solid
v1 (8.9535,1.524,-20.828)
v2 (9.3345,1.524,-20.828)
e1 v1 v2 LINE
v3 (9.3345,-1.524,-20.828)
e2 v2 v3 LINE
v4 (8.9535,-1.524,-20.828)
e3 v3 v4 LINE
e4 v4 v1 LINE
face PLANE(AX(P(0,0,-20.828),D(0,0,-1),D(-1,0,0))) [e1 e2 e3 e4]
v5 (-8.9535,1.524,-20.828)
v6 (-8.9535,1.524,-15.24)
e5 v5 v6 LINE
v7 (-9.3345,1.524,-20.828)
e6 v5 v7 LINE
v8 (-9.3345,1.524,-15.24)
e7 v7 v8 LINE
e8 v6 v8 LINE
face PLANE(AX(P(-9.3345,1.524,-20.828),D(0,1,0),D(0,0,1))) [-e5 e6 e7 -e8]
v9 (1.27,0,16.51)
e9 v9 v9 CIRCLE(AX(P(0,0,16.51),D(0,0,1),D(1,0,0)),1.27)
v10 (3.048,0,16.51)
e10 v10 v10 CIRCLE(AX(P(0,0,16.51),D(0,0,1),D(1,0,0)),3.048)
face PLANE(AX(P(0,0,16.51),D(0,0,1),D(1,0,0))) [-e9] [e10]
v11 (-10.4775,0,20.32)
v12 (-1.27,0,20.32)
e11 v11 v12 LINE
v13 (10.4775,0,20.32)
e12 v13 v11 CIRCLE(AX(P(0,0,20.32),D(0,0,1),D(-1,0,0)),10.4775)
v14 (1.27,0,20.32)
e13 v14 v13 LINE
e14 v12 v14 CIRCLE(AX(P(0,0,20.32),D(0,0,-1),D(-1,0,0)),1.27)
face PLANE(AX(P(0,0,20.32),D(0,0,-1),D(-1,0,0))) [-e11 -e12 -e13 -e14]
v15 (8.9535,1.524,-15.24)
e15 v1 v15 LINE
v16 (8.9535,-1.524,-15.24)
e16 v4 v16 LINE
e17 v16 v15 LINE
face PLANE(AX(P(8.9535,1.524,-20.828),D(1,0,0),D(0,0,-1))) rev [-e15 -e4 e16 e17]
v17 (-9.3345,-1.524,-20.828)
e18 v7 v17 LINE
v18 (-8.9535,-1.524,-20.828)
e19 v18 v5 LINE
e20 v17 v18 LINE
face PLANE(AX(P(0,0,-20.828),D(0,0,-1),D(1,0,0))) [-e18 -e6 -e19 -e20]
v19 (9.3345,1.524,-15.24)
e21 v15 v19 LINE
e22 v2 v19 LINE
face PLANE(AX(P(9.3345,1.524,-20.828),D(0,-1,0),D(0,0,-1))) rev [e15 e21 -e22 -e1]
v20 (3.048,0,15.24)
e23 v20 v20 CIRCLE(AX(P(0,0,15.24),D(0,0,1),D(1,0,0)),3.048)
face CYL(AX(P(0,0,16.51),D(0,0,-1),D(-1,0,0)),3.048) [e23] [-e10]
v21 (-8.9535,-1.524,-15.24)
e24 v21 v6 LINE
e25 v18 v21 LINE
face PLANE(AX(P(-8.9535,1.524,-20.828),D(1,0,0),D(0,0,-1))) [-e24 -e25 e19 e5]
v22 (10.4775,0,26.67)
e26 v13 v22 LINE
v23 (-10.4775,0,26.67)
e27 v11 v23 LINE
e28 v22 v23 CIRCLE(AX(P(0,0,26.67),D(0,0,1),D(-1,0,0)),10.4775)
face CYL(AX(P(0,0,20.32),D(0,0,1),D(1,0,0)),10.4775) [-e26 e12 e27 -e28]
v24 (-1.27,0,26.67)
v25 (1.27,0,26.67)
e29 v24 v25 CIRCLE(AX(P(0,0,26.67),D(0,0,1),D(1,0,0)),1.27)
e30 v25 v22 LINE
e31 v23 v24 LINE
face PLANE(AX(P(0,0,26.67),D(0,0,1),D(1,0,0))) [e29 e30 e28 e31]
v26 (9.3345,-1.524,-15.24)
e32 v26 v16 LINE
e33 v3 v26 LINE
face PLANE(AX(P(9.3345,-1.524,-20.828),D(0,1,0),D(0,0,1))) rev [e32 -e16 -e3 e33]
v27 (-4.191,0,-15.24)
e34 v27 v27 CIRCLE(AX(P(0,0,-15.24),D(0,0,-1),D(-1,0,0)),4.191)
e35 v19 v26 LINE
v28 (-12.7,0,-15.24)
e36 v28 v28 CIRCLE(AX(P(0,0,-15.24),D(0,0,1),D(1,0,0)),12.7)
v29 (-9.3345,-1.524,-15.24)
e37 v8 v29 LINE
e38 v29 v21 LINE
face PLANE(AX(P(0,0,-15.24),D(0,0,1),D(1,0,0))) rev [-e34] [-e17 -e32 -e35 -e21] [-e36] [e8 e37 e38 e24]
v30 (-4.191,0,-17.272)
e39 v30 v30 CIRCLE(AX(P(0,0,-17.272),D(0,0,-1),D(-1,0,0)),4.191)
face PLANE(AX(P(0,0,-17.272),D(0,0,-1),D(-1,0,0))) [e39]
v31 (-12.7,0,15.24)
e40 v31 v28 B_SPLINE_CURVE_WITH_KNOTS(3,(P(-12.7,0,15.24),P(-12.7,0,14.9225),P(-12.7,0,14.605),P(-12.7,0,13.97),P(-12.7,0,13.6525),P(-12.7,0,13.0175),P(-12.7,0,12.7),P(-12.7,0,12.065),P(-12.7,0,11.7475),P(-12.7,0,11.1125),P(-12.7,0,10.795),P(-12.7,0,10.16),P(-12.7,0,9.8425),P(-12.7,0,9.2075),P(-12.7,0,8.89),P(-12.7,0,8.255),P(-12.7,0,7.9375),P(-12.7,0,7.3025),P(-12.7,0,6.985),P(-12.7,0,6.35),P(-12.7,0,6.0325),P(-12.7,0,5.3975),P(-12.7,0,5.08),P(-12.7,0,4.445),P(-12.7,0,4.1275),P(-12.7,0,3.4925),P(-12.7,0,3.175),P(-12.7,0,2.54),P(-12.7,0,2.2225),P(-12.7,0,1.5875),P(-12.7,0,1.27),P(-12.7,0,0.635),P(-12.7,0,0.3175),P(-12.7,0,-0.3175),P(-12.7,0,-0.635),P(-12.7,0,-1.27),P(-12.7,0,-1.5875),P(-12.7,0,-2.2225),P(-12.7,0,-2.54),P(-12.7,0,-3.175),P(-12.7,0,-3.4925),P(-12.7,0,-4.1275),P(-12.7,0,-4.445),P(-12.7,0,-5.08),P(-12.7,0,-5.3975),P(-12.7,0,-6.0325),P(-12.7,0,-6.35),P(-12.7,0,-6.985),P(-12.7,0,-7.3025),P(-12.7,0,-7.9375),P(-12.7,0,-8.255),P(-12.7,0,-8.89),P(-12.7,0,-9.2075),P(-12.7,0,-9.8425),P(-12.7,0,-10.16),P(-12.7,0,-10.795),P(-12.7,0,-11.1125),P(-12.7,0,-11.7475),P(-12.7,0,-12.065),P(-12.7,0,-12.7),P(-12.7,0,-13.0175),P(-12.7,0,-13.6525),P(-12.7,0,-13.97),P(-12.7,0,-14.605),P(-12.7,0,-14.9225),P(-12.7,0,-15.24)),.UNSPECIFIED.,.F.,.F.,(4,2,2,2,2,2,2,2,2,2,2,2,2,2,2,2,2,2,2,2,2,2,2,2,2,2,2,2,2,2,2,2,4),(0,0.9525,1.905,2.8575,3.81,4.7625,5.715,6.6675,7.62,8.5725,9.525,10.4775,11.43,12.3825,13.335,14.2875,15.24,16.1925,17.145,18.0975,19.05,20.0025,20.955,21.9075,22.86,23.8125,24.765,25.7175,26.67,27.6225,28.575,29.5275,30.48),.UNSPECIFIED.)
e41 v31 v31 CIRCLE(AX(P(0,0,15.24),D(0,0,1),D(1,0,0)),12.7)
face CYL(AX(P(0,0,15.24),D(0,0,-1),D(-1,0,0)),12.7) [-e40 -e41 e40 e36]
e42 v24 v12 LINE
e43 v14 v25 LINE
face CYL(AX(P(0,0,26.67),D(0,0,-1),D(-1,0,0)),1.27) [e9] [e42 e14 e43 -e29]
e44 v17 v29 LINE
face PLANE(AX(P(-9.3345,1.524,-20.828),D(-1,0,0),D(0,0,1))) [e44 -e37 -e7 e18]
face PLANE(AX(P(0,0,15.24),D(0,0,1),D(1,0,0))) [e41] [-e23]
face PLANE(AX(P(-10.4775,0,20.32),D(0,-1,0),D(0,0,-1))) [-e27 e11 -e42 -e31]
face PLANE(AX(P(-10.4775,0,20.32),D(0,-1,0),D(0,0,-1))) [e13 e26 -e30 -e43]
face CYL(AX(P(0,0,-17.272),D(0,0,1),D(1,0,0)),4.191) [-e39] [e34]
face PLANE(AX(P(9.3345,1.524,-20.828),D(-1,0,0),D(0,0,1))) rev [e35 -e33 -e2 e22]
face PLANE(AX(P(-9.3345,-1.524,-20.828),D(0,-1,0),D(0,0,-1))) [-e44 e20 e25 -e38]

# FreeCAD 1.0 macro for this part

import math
import FreeCAD as App
import Part
import Sketcher
Q = App.Units.Quantity

doc = App.newDocument("Part")
body = doc.addObject("PartDesign::Body", "Body")

# Sketch on XY plane
sketch1 = body.newObject("Sketcher::SketchObject", "Sketch")
sketch1.AttachmentSupport = (doc.getObject("XY_Plane"), [""])
sketch1.MapMode = "FlatFace"
sketch1.addGeometry(Part.Circle(App.Vector(0, 0, 0), App.Vector(0, 0, 1), 12.7), False)
sketch1.addConstraint(Sketcher.Constraint("Coincident", 0, 3, -1, 1))
sketch1.addConstraint(Sketcher.Constraint("Diameter", 0, Q("1 in")))
pad1 = body.newObject("PartDesign::Pad", "Pad")
pad1.Profile = sketch1
pad1.Length = Q("1.2 in")
pad1.Midplane = True

# Sketch on XY plane
sketch2 = body.newObject("Sketcher::SketchObject", "Sketch001")
sketch2.AttachmentSupport = (doc.getObject("XY_Plane"), [""])
sketch2.MapMode = "FlatFace"
sketch2.AttachmentOffset = App.Placement(App.Vector(0, 0, 0.6 * 25.4), App.Rotation())
sketch2.addGeometry(Part.Circle(App.Vector(0, 0, 0), App.Vector(0, 0, 1), 3.048), False)
sketch2.addConstraint(Sketcher.Constraint("Coincident", 0, 3, -1, 1))
sketch2.addConstraint(Sketcher.Constraint("Diameter", 0, Q("0.24 in")))
pad2 = body.newObject("PartDesign::Pad", "Pad001")
pad2.Profile = sketch2
pad2.Length = Q("0.05 in")

# Sketch on XY plane
sketch3 = body.newObject("Sketcher::SketchObject", "Sketch002")
sketch3.AttachmentSupport = (doc.getObject("XY_Plane"), [""])
sketch3.MapMode = "FlatFace"
sketch3.AttachmentOffset = App.Placement(App.Vector(0, 0, 0.65 * 25.4), App.Rotation())
sketch3.addGeometry(Part.Circle(App.Vector(0, 0, 0), App.Vector(0, 0, 1), 1.27), False)
sketch3.addConstraint(Sketcher.Constraint("Coincident", 0, 3, -1, 1))
sketch3.addConstraint(Sketcher.Constraint("Diameter", 0, Q("0.1 in")))
pad3 = body.newObject("PartDesign::Pad", "Pad002")
pad3.Profile = sketch3
pad3.Length = Q("0.4 in")

# Sketch on XY plane
sketch4 = body.newObject("Sketcher::SketchObject", "Sketch003")
sketch4.AttachmentSupport = (doc.getObject("XY_Plane"), [""])
sketch4.MapMode = "FlatFace"
sketch4.AttachmentOffset = App.Placement(App.Vector(0, 0, 1.05 * 25.4), App.Rotation())
sketch4.addGeometry(Part.LineSegment(App.Vector(-10.4775, 0, 0), App.Vector(10.4775, 0, 0)), False)
sketch4.addGeometry(Part.ArcOfCircle(Part.Circle(App.Vector(0, 0, 0), App.Vector(0, 0, 1), 10.4775), math.radians(0), math.radians(180)), False)
sketch4.addConstraint(Sketcher.Constraint("Coincident", 0, 1, 1, 2))
sketch4.addConstraint(Sketcher.Constraint("Coincident", 1, 1, 0, 2))
sketch4.addConstraint(Sketcher.Constraint("Horizontal", 0))
sketch4.addConstraint(Sketcher.Constraint("Coincident", 1, 3, -1, 1))
sketch4.addConstraint(Sketcher.Constraint("PointOnObject", 0, 1, -1))
sketch4.addConstraint(Sketcher.Constraint("Radius", 1, Q("0.4125 in")))
pad4 = body.newObject("PartDesign::Pad", "Pad003")
pad4.Profile = sketch4
pad4.Length = Q("0.25 in")
pad4.Reversed = True

# Sketch on XY plane
sketch5 = body.newObject("Sketcher::SketchObject", "Sketch004")
sketch5.AttachmentSupport = (doc.getObject("XY_Plane"), [""])
sketch5.MapMode = "FlatFace"
sketch5.AttachmentOffset = App.Placement(App.Vector(0, 0, -0.6 * 25.4), App.Rotation())
sketch5.addGeometry(Part.Circle(App.Vector(0, 0, 0), App.Vector(0, 0, 1), 4.191), False)
sketch5.addConstraint(Sketcher.Constraint("Coincident", 0, 3, -1, 1))
sketch5.addConstraint(Sketcher.Constraint("Diameter", 0, Q("0.33 in")))
pad5 = body.newObject("PartDesign::Pad", "Pad004")
pad5.Profile = sketch5
pad5.Length = Q("0.08 in")
pad5.Reversed = True

# Sketch on XY plane
sketch6 = body.newObject("Sketcher::SketchObject", "Sketch005")
sketch6.AttachmentSupport = (doc.getObject("XY_Plane"), [""])
sketch6.MapMode = "FlatFace"
sketch6.AttachmentOffset = App.Placement(App.Vector(0, 0, -0.6 * 25.4), App.Rotation())
sketch6.addGeometry(Part.LineSegment(App.Vector(9.3345, 1.524, 0), App.Vector(9.3345, -1.524, 0)), False)
sketch6.addGeometry(Part.LineSegment(App.Vector(9.3345, -1.524, 0), App.Vector(8.9535, -1.524, 0)), False)
sketch6.addGeometry(Part.LineSegment(App.Vector(8.9535, -1.524, 0), App.Vector(8.9535, 1.524, 0)), False)
sketch6.addGeometry(Part.LineSegment(App.Vector(8.9535, 1.524, 0), App.Vector(9.3345, 1.524, 0)), False)
sketch6.addConstraint(Sketcher.Constraint("Coincident", 0, 2, 1, 1))
sketch6.addConstraint(Sketcher.Constraint("Coincident", 1, 2, 2, 1))
sketch6.addConstraint(Sketcher.Constraint("Coincident", 2, 2, 3, 1))
sketch6.addConstraint(Sketcher.Constraint("Coincident", 3, 2, 0, 1))
sketch6.addConstraint(Sketcher.Constraint("Vertical", 0))
sketch6.addConstraint(Sketcher.Constraint("Horizontal", 1))
sketch6.addConstraint(Sketcher.Constraint("Vertical", 2))
sketch6.addConstraint(Sketcher.Constraint("Horizontal", 3))
sketch6.addConstraint(Sketcher.Constraint("DistanceY", 0, 2, 0, 1, Q("0.12 in")))
sketch6.addConstraint(Sketcher.Constraint("DistanceX", 1, 2, 1, 1, Q("0.015 in")))
sketch6.addConstraint(Sketcher.Constraint("DistanceY", 0, 2, -1, 1, Q("0.06 in")))
sketch6.addConstraint(Sketcher.Constraint("DistanceX", -1, 1, 0, 2, Q("0.3675 in")))
pad6 = body.newObject("PartDesign::Pad", "Pad005")
pad6.Profile = sketch6
pad6.Length = Q("0.22 in")
pad6.Reversed = True
doc.recompute()

mirrored = body.newObject("PartDesign::Mirrored", "Mirrored")
mirrored.Originals = [pad6]
mirrored.MirrorPlane = (doc.getObject("YZ_Plane"), [""])
body.Tip = mirrored

doc.recompute()
